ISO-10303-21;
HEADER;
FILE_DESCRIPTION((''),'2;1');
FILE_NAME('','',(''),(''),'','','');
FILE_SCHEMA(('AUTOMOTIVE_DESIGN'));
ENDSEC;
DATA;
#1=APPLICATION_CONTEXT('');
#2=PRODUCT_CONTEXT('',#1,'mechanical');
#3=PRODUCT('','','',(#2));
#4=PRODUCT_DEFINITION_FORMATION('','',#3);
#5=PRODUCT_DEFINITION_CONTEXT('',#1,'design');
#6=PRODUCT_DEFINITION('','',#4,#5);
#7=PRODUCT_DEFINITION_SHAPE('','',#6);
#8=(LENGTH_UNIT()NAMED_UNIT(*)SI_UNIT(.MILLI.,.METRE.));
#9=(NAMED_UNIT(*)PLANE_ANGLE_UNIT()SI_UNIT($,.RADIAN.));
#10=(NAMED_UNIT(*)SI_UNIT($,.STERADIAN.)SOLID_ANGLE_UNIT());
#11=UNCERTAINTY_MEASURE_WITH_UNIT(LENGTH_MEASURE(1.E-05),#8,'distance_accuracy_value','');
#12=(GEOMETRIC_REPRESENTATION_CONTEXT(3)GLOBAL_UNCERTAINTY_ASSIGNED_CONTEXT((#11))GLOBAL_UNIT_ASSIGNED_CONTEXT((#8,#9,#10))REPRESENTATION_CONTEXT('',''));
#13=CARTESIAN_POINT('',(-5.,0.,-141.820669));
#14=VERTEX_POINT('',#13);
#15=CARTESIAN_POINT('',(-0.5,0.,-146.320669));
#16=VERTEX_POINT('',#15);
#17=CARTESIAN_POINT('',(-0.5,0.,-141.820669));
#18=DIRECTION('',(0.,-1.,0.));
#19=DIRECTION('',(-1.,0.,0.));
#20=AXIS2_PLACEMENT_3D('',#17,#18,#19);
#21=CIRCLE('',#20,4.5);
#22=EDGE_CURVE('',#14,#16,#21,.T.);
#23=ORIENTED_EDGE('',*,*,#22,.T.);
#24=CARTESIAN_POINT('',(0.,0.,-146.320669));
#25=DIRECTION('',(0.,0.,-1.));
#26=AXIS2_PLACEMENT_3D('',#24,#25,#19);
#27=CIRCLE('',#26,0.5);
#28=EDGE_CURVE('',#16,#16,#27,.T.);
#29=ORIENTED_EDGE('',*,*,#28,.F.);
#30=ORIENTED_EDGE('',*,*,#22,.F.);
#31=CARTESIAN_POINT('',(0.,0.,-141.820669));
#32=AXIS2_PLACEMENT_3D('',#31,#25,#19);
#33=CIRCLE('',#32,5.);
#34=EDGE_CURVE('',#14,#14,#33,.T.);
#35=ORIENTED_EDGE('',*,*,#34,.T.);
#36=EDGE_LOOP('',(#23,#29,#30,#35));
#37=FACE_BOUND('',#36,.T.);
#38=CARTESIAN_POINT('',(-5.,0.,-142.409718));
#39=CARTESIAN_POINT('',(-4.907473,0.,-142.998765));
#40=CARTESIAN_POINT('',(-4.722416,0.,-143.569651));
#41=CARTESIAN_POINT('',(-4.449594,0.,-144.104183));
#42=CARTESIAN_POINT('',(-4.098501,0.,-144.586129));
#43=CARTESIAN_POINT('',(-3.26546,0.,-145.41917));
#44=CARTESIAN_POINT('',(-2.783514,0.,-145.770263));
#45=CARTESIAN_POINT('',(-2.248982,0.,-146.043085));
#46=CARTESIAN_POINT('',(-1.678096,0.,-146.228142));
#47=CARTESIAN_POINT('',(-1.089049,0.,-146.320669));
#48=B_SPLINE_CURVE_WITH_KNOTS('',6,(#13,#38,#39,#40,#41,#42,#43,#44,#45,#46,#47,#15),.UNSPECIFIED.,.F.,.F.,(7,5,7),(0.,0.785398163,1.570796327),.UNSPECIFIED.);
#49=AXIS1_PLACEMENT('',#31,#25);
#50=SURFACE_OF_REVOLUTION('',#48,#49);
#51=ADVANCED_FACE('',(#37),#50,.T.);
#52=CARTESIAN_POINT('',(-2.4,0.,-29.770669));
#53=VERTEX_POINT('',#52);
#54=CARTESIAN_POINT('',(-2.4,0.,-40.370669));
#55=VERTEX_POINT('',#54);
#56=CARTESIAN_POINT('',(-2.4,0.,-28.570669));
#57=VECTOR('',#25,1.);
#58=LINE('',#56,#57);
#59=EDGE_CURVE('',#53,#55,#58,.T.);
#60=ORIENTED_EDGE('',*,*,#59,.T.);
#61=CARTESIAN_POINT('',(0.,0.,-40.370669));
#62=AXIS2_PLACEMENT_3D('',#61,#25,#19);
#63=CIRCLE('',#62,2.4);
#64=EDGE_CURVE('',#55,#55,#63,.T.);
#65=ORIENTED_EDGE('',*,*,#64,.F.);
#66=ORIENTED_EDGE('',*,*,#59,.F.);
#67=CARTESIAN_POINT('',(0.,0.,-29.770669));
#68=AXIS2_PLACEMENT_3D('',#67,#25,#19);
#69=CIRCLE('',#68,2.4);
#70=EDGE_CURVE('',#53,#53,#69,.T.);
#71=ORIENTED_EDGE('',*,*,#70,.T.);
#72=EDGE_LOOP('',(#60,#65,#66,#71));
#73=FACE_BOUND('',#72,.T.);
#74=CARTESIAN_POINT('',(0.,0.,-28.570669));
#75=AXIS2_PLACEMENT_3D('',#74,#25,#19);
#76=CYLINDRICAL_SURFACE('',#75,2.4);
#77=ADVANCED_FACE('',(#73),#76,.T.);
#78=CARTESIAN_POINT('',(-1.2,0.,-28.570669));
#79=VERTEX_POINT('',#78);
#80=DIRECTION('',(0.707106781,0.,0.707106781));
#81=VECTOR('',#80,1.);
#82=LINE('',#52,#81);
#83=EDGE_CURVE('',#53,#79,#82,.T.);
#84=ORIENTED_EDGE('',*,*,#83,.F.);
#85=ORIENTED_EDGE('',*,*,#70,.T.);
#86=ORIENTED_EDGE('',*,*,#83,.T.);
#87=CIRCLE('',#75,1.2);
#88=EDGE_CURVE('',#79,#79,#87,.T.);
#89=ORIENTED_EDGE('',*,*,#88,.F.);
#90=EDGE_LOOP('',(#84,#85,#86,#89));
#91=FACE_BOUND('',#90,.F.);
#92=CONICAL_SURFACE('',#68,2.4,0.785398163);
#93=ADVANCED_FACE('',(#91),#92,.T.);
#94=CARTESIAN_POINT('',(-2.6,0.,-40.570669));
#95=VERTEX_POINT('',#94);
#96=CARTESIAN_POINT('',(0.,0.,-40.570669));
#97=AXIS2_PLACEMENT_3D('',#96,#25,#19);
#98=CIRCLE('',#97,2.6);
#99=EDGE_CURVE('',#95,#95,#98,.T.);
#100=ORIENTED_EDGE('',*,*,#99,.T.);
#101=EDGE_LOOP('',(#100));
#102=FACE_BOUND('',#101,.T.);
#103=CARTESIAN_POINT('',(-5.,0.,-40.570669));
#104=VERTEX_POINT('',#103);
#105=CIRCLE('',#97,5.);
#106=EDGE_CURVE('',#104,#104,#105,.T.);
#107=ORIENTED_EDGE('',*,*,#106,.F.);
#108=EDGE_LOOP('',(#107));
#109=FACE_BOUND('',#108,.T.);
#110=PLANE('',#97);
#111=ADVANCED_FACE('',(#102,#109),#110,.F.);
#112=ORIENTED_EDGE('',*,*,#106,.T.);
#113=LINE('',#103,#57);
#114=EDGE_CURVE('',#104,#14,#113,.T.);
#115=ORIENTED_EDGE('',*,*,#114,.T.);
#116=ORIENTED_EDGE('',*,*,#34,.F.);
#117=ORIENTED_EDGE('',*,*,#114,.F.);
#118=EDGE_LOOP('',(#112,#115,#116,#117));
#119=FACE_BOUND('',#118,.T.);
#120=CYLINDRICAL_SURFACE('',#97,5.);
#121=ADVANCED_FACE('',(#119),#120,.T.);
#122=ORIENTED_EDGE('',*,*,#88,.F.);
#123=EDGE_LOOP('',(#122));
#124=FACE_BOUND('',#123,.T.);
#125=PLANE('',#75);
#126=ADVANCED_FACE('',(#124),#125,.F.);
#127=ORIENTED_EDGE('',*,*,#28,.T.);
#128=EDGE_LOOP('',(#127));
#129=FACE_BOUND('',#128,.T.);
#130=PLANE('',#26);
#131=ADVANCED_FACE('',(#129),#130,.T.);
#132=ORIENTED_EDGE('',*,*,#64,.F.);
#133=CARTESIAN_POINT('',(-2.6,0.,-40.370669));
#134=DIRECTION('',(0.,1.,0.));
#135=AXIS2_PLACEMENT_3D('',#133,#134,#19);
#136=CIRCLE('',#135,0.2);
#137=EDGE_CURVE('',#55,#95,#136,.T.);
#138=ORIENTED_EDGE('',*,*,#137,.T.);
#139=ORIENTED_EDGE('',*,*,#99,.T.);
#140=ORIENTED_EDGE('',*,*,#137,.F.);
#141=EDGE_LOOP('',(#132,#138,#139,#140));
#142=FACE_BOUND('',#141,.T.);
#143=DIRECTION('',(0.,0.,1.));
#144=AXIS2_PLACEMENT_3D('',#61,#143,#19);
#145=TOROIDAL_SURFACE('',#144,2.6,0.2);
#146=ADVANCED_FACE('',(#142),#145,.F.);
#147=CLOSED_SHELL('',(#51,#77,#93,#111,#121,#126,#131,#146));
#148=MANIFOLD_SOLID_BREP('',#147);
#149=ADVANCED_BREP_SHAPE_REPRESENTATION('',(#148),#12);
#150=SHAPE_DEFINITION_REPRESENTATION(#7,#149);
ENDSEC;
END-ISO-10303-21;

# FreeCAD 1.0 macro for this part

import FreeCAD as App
import Part
import Sketcher
from FreeCAD import Vector
Q = App.Units.Quantity


def edges_at(feature, points):
    """Names of the edges that pass closest to the given points."""
    edges = feature.Shape.Edges
    near = lambda p: min(range(len(edges)), key=lambda i: edges[i].distToShape(Part.Vertex(*p))[0])
    return sorted({f"Edge{near(p) + 1}" for p in points})


def add_polygon(sketch, points):
    """Adds a closed chain of lines whose ends are joined by coincident constraints."""
    first, n = sketch.GeometryCount, len(points)
    for a, b in zip(points, points[1:] + points[:1]):
        sketch.addGeometry(Part.LineSegment(App.Vector(*a, 0), App.Vector(*b, 0)), False)
    for i in range(n):
        sketch.addConstraint(Sketcher.Constraint("Coincident", first + i, 2, first + (i + 1) % n, 1))

doc = App.newDocument("Part")
body = doc.addObject("PartDesign::Body", "Body")

sketch1 = body.newObject("Sketcher::SketchObject", "Sketch")
sketch1.AttachmentSupport = (doc.getObject("XZ_Plane"), [""])
sketch1.MapMode = "FlatFace"
add_polygon(sketch1, [(-2.4, -40.6), (-5, -40.6), (-5, -146.3), (0, -146.3), (0, -28.6), (-2.4, -28.6)])
sketch1.addConstraint([
    Sketcher.Constraint("Horizontal", 0),
    Sketcher.Constraint("Vertical", 1),
    Sketcher.Constraint("Horizontal", 2),
    Sketcher.Constraint("Vertical", 3),
    Sketcher.Constraint("Horizontal", 4),
    Sketcher.Constraint("Vertical", 5),
    Sketcher.Constraint("PointOnObject", 2, 2, -2),
    Sketcher.Constraint("DistanceX", 2, 1, 2, 2, Q("5 mm")),
    Sketcher.Constraint("DistanceY", 5, 2, 5, 1, Q("12 mm")),
    Sketcher.Constraint("DistanceX", 0, 2, 0, 1, Q("2.6 mm")),
    Sketcher.Constraint("DistanceY", 1, 2, 1, 1, Q("105.75 mm")),
    Sketcher.Constraint("DistanceY", 0, 2, -1, 1, Q("40.570669 mm")),
])
revolution = body.newObject("PartDesign::Revolution", "Revolution")
revolution.Profile = sketch1
revolution.ReferenceAxis = (sketch1, ["V_Axis"])
revolution.Angle = 360
doc.recompute()

fillet = body.newObject("PartDesign::Fillet", "Fillet")
fillet.Base = (revolution, edges_at(revolution, [(5, 0, -146.321)]))
fillet.Radius = 4.5
doc.recompute()

chamfer = body.newObject("PartDesign::Chamfer", "Chamfer")
chamfer.Base = (fillet, edges_at(fillet, [(2.4, 0, -28.571)]))
chamfer.Size = 1.2
doc.recompute()

fillet2 = body.newObject("PartDesign::Fillet", "Fillet001")
fillet2.Base = (chamfer, edges_at(chamfer, [(2.4, 0, -40.571)]))
fillet2.Radius = 0.2

doc.recompute()
